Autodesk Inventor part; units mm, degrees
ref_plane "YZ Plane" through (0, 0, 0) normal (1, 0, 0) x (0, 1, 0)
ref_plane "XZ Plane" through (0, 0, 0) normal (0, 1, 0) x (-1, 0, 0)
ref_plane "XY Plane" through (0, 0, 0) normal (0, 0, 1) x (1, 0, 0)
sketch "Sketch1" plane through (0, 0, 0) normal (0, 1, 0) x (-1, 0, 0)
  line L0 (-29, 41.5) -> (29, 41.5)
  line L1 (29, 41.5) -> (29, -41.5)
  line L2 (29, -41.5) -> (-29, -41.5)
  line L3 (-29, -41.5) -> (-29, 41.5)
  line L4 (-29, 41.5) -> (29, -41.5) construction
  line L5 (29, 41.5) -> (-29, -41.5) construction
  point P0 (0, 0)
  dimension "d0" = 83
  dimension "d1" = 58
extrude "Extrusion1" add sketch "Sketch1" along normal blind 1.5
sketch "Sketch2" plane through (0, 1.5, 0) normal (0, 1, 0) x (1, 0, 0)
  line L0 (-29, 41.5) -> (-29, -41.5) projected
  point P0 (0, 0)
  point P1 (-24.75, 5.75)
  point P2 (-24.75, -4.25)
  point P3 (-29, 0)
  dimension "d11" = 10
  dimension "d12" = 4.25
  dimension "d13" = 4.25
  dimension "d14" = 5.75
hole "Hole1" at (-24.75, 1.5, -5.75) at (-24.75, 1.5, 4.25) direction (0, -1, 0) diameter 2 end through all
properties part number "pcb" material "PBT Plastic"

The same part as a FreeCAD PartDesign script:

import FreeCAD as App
import Part
import Sketcher

V = App.Vector

doc = App.newDocument("Part")
params = doc.addObject("Spreadsheet::Sheet", "Params")
for row, (alias, value) in enumerate([
    ("sketch1_width", "58 mm"),
    ("sketch1_height", "83 mm"),
    ("pad1_length", "1.5 mm"),
    ("sketch2_diameter", "2 mm"),
    ("hole_diameter", "2 mm"),
], start=1):
    params.set(f"A{row}", alias)
    params.set(f"B{row}", "=" + value)
    params.setAlias(f"B{row}", alias)

body = doc.addObject("PartDesign::Body", "Body")

# Sketch on XZ plane
sketch1 = body.newObject("Sketcher::SketchObject", "Sketch")
sketch1.AttachmentSupport = (doc.getObject("XZ_Plane"), [""])
sketch1.MapMode = "FlatFace"
sketch1.addGeometry([
    Part.LineSegment(V(-29, 42, 0), V(29, 42, 0)),
    Part.LineSegment(V(29, 42, 0), V(29, -42, 0)),
    Part.LineSegment(V(29, -42, 0), V(-29, -42, 0)),
    Part.LineSegment(V(-29, -42, 0), V(-29, 42, 0)),
], False)
sketch1.addConstraint([
    Sketcher.Constraint("Coincident", 0, 2, 1, 1),
    Sketcher.Constraint("Coincident", 1, 2, 2, 1),
    Sketcher.Constraint("Coincident", 2, 2, 3, 1),
    Sketcher.Constraint("Coincident", 3, 2, 0, 1),
    Sketcher.Constraint("Horizontal", 0),
    Sketcher.Constraint("Vertical", 1),
    Sketcher.Constraint("Horizontal", 2),
    Sketcher.Constraint("Vertical", 3),
    Sketcher.Constraint("Symmetric", 0, 2, 2, 2, -1, 1),
    Sketcher.Constraint("DistanceX", 0, 1, 0, 2, 58.0),
    Sketcher.Constraint("DistanceY", 1, 2, 1, 1, 83.0),
])
sketch1.setExpression("Constraints[9]", "Params.sketch1_width")
sketch1.setExpression("Constraints[10]", "Params.sketch1_height")
pad1 = body.newObject("PartDesign::Pad", "Pad")
pad1.Profile = sketch1
pad1.setExpression("Length", "Params.pad1_length")
pad1.Reversed = True

# Sketch on XZ plane
sketch2 = body.newObject("Sketcher::SketchObject", "Sketch001")
sketch2.AttachmentSupport = (doc.getObject("XZ_Plane"), [""])
sketch2.MapMode = "FlatFace"
sketch2.AttachmentOffset = App.Placement(V(0, 0, -1.5), App.Rotation())
sketch2.addGeometry([
    Part.Circle(V(-24.8, -5.8, 0), V(0, 0, 1), 1),
    Part.Circle(V(-24.8, 4.2, 0), V(0, 0, 1), 1),
], False)
sketch2.addConstraint([
    Sketcher.Constraint("Equal", 0, 1),
    Sketcher.Constraint("Vertical", 0, 3, 1, 3),
    Sketcher.Constraint("Diameter", 0, 2.0),
    Sketcher.Constraint("DistanceY", 0, 3, 1, 3, 10.0),
    Sketcher.Constraint("DistanceX", 0, 3, -1, 1, 24.75),
    Sketcher.Constraint("DistanceY", 0, 3, -1, 1, 5.75),
])
sketch2.setExpression("Constraints[2]", "Params.sketch2_diameter")
doc.recompute()
hole = body.newObject("PartDesign::Hole", "Hole")
hole.Profile = sketch2
hole.ThreadType = "None"
hole.setExpression("Diameter", "Params.hole_diameter")
hole.DepthType = "ThroughAll"
hole.Reversed = True

doc.recompute()
